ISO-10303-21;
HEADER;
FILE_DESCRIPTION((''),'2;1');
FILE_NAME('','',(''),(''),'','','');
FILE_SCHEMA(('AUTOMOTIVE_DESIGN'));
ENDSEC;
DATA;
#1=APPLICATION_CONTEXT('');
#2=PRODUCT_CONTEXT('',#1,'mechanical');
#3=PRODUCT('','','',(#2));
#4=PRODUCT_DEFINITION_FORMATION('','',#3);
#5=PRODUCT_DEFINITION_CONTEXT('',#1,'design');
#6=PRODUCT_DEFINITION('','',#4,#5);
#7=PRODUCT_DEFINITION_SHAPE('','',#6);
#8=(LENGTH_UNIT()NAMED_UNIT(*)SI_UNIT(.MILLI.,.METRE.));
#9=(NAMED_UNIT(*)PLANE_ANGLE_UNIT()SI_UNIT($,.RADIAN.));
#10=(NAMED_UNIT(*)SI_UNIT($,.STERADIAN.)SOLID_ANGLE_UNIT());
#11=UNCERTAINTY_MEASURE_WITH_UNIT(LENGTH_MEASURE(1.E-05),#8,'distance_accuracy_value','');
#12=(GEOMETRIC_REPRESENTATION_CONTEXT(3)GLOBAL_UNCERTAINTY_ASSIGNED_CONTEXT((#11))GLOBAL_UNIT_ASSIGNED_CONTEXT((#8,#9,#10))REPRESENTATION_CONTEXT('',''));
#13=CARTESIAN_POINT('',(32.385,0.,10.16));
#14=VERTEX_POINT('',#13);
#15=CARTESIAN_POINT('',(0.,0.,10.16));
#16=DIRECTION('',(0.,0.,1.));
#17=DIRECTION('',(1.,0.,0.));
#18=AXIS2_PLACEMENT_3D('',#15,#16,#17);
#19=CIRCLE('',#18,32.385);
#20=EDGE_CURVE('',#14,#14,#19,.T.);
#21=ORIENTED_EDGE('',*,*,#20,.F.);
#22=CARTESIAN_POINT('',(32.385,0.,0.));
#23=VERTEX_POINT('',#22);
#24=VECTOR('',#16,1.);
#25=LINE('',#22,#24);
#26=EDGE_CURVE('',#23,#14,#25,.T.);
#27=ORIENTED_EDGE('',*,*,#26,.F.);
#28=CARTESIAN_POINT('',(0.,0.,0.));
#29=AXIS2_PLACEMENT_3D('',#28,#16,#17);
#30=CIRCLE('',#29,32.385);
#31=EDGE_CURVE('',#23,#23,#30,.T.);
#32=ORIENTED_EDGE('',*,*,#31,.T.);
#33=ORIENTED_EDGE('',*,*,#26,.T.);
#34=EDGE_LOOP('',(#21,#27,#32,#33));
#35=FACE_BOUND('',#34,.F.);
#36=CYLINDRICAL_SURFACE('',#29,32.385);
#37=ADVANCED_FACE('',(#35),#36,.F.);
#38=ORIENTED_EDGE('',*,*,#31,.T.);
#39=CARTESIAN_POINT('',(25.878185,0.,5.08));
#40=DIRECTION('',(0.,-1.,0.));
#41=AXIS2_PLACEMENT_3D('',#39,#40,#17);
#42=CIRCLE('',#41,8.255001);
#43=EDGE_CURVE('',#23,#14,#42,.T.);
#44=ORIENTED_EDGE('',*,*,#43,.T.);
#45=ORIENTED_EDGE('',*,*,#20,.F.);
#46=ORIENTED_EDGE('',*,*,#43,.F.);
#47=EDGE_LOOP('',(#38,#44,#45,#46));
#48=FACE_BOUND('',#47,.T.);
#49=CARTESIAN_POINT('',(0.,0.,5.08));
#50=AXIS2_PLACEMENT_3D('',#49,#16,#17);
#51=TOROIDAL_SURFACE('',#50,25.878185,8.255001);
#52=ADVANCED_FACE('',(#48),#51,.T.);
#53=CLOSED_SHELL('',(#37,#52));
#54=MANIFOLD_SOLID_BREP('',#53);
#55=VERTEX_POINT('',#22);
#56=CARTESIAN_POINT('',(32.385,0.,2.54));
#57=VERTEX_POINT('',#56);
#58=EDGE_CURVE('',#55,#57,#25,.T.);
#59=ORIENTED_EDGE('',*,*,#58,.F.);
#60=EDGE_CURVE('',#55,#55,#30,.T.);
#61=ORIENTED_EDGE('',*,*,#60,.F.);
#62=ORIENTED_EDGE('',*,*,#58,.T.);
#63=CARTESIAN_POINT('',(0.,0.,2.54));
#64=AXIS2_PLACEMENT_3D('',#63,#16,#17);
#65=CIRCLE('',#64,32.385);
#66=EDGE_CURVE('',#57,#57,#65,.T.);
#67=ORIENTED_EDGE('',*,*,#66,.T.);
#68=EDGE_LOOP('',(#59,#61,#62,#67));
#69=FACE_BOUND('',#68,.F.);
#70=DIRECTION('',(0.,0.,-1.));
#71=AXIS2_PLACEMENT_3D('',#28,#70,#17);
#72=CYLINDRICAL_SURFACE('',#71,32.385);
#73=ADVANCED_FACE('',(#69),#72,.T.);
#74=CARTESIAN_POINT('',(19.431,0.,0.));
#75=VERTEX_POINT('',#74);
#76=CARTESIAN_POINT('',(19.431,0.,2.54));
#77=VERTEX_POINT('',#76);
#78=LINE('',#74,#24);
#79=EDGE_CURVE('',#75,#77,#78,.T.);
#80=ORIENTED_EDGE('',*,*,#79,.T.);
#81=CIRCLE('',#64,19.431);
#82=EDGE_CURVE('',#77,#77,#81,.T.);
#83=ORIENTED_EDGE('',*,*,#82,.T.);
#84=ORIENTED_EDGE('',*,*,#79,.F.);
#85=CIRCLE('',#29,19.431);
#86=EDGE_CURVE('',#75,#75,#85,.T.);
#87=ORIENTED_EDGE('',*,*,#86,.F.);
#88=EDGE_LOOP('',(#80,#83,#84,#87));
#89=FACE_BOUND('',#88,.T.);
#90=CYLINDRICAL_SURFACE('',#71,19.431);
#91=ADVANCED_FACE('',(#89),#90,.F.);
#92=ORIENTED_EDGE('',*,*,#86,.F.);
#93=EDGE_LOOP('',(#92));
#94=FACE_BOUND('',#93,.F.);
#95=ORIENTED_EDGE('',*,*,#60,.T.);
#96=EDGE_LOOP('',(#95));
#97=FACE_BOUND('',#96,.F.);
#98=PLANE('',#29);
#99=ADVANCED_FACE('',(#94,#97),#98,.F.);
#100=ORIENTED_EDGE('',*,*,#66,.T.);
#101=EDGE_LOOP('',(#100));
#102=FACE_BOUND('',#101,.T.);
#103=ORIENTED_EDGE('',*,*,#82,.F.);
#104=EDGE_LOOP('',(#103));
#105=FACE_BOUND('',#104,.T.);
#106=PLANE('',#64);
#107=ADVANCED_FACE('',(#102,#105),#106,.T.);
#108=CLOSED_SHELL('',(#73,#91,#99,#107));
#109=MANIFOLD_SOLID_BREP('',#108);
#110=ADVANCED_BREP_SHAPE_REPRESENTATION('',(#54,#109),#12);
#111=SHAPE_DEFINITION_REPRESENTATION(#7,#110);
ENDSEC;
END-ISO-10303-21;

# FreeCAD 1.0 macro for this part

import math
import FreeCAD as App
import Part
import Sketcher
from FreeCAD import Vector
Q = App.Units.Quantity

doc = App.newDocument("Part")
params = doc.addObject("Spreadsheet::Sheet", "Params")
for row, (alias, value) in enumerate([
    ("sketch1_height", "0.4 in"),
    ("sketch1_radius", "0.325 in"),
    ("sketch2_diameter", "2.55 in"),
    ("sketch3_diameter", "2.55 in"),
    ("sketch3_diameter2", "1.53 in"),
    ("pad1_length", "0.1 in"),
], start=1):
    params.set(f"A{row}", alias)
    params.set(f"B{row}", "=" + value)
    params.setAlias(f"B{row}", alias)

body = doc.addObject("PartDesign::Body", "Body")

sketch1 = body.newObject("Sketcher::SketchObject", "Sketch")
sketch1.AttachmentSupport = (doc.getObject("YZ_Plane"), [""])
sketch1.MapMode = "FlatFace"
sketch1.addGeometry([
    Part.ArcOfCircle(Part.Circle(Vector(-26, 5, 0), Vector(0, 0, 1), 8), math.radians(142), math.radians(218)),
    Part.LineSegment(Vector(-32, 0, 0), Vector(-32, 10, 0)),
], False)
sketch1.addConstraint([
    Sketcher.Constraint("Coincident", 0, 1, 1, 2),
    Sketcher.Constraint("Coincident", 1, 1, 0, 2),
    Sketcher.Constraint("Vertical", 1),
    Sketcher.Constraint("PointOnObject", 1, 1, -1),
    Sketcher.Constraint("DistanceY", 1, 1, 1, 2, Q("0.4 in")),
    Sketcher.Constraint("Radius", 0, Q("0.325 in")),
    Sketcher.Constraint("DistanceX", 0, 1, -1, 1, Q("1.275 in")),
])
sketch1.setExpression("Constraints[4]", "Params.sketch1_height")
sketch1.setExpression("Constraints[5]", "Params.sketch1_radius")

sketch2 = body.newObject("Sketcher::SketchObject", "Sketch001")
sketch2.AttachmentSupport = (doc.getObject("XY_Plane"), [""])
sketch2.MapMode = "FlatFace"
sketch2.addGeometry(Part.Circle(Vector(0, 0, 0), Vector(0, 0, 1), 32), False)
sketch2.addConstraint([
    Sketcher.Constraint("Coincident", 0, 3, -1, 1),
    Sketcher.Constraint("Diameter", 0, Q("2.55 in")),
])
sketch2.setExpression("Constraints[1]", "Params.sketch2_diameter")
doc.recompute()

additivepipe = body.newObject("PartDesign::AdditivePipe", "AdditivePipe")
additivepipe.Profile = sketch1
additivepipe.Spine = (sketch2, ["Edge1"])
body2 = doc.addObject("PartDesign::Body", "Body001")

sketch3 = body2.newObject("Sketcher::SketchObject", "Sketch002")
sketch3.AttachmentSupport = (doc.getObject("XY_Plane001"), [""])
sketch3.MapMode = "FlatFace"
sketch3.addGeometry([
    Part.Circle(Vector(0, 0, 0), Vector(0, 0, 1), 32),
    Part.Circle(Vector(0, 0, 0), Vector(0, 0, 1), 19),
], False)
sketch3.addConstraint([
    Sketcher.Constraint("Coincident", 0, 3, -1, 1),
    Sketcher.Constraint("Coincident", 1, 3, -1, 1),
    Sketcher.Constraint("Diameter", 0, Q("2.55 in")),
    Sketcher.Constraint("Diameter", 1, Q("1.53 in")),
])
sketch3.setExpression("Constraints[2]", "Params.sketch3_diameter")
sketch3.setExpression("Constraints[3]", "Params.sketch3_diameter2")
pad1 = body2.newObject("PartDesign::Pad", "Pad")
pad1.Profile = sketch3
pad1.setExpression("Length", "Params.pad1_length")

doc.recompute()
